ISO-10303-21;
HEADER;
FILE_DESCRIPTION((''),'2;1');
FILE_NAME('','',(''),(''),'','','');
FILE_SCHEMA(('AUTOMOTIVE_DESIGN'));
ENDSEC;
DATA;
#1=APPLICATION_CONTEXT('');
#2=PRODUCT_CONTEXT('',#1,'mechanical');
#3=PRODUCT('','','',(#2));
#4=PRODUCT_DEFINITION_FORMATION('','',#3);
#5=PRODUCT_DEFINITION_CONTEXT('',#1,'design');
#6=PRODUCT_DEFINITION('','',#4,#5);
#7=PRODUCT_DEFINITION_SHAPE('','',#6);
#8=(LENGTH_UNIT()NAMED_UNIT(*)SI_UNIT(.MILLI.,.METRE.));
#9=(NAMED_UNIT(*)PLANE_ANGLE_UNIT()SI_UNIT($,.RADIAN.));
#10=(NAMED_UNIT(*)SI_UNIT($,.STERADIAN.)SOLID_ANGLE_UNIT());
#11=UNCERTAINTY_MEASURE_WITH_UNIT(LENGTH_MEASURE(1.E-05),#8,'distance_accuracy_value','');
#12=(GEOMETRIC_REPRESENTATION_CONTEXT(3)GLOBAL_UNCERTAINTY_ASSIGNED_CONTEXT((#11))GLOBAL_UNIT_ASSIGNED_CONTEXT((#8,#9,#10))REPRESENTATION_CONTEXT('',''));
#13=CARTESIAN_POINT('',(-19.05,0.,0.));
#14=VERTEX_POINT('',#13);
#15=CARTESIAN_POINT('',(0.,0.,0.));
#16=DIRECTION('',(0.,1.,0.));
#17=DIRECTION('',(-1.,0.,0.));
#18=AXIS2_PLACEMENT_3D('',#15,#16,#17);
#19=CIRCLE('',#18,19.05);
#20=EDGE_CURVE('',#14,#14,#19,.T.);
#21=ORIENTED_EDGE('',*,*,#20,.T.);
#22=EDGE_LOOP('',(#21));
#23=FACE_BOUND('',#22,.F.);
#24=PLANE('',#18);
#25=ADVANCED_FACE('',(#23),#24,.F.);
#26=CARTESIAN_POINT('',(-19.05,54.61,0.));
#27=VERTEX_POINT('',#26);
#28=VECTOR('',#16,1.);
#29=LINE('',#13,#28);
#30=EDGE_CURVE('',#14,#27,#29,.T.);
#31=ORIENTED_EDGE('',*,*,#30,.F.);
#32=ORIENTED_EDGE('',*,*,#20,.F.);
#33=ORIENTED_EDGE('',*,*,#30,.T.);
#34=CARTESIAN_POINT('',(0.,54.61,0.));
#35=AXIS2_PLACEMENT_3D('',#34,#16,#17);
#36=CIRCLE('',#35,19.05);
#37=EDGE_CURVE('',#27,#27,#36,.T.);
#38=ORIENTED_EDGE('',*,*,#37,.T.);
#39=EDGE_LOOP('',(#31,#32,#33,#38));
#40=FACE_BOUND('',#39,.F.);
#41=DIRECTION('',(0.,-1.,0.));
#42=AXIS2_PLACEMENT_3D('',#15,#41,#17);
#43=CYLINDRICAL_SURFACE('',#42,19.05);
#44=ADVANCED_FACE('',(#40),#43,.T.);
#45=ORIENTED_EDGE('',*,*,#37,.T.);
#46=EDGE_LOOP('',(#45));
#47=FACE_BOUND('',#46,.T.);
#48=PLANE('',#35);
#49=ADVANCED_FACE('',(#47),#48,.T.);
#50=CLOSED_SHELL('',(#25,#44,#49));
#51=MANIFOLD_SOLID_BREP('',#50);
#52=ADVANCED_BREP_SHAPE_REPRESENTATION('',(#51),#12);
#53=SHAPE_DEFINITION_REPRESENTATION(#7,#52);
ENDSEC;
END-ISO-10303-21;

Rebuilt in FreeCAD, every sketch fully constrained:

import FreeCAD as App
import Part
import Sketcher
Q = App.Units.Quantity

doc = App.newDocument("Part")
body = doc.addObject("PartDesign::Body", "Body")

sketch1 = doc.addObject("Sketcher::SketchObject", "Sketch")
body.addObject(sketch1)
sketch1.AttachmentSupport = (doc.XZ_Plane, [""])
sketch1.MapMode = "FlatFace"
sketch1.addGeometry(Part.Circle(App.Vector(0, 0, 0), App.Vector(0, 0, 1), 19), False)
sketch1.addConstraint(Sketcher.Constraint("Coincident", 0, 3, -1, 1))
sketch1.addConstraint(Sketcher.Constraint("Diameter", 0, Q("1.5 in")))
pad1 = doc.addObject("PartDesign::Pad", "Pad")
body.addObject(pad1)
pad1.Profile = sketch1
pad1.Length = Q("2.15 in")
pad1.Reversed = True

doc.recompute()
